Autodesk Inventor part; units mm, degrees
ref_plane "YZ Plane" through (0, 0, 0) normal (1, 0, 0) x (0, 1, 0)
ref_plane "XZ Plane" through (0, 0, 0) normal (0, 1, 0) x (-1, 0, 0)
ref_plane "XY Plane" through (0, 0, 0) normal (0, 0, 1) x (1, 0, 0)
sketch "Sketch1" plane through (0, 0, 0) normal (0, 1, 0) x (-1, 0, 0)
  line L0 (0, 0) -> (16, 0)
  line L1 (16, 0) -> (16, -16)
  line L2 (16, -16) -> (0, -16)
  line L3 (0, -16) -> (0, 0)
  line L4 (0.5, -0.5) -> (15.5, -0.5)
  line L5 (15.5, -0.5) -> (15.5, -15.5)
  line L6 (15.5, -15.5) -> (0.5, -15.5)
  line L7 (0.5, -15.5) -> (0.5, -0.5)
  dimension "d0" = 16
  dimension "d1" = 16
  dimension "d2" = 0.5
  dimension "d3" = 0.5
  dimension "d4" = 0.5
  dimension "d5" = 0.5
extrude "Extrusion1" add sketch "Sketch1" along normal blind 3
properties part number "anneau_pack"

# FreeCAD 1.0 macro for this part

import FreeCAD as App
import Part
import Sketcher


def add_polygon(sketch, points):
    """Adds a closed chain of lines whose ends are joined by coincident constraints."""
    first, n = sketch.GeometryCount, len(points)
    for a, b in zip(points, points[1:] + points[:1]):
        sketch.addGeometry(Part.LineSegment(App.Vector(*a, 0), App.Vector(*b, 0)), False)
    for i in range(n):
        sketch.addConstraint(Sketcher.Constraint("Coincident", first + i, 2, first + (i + 1) % n, 1))

doc = App.newDocument("Part")
params = doc.addObject("Spreadsheet::Sheet", "Params")
for row, (alias, value) in enumerate([
    ("sketch1_width", "16 mm"),
    ("pad1_length", "3 mm"),
], start=1):
    params.set(f"A{row}", alias)
    params.set(f"B{row}", "=" + value)
    params.setAlias(f"B{row}", alias)

body = doc.addObject("PartDesign::Body", "Body")

# Sketch on XZ plane
sketch1 = body.newObject("Sketcher::SketchObject", "Sketch")
sketch1.AttachmentSupport = (doc.getObject("XZ_Plane"), [""])
sketch1.MapMode = "FlatFace"
add_polygon(sketch1, [(-16, 0), (0, 0), (0, -16), (-16, -16)])  # lines 0-3
add_polygon(sketch1, [(0, -16), (0, 0), (-16, 0), (-16, -16)])  # lines 4-7
sketch1.addConstraint([
    Sketcher.Constraint("Horizontal", 0),
    Sketcher.Constraint("Vertical", 1),
    Sketcher.Constraint("Horizontal", 2),
    Sketcher.Constraint("Vertical", 3),
    Sketcher.Constraint("Vertical", 4),
    Sketcher.Constraint("Horizontal", 5),
    Sketcher.Constraint("Vertical", 6),
    Sketcher.Constraint("Horizontal", 7),
    Sketcher.Constraint("Coincident", 0, 2, -1, 1),
    Sketcher.Constraint("Equal", 2, 1),
    Sketcher.Constraint("Equal", 7, 4),
    Sketcher.Constraint("DistanceX", 0, 1, 0, 2, 16.0),
    Sketcher.Constraint("DistanceX", 4, 2, -1, 1, 0.5),
    Sketcher.Constraint("DistanceY", 4, 2, -1, 1, 0.5),
    Sketcher.Constraint("DistanceX", 3, 2, 5, 2, 0.5),
])
sketch1.setExpression("Constraints[19]", "Params.sketch1_width")
pad1 = body.newObject("PartDesign::Pad", "Pad")
pad1.Profile = sketch1
pad1.setExpression("Length", "Params.pad1_length")
pad1.Reversed = True

doc.recompute()
